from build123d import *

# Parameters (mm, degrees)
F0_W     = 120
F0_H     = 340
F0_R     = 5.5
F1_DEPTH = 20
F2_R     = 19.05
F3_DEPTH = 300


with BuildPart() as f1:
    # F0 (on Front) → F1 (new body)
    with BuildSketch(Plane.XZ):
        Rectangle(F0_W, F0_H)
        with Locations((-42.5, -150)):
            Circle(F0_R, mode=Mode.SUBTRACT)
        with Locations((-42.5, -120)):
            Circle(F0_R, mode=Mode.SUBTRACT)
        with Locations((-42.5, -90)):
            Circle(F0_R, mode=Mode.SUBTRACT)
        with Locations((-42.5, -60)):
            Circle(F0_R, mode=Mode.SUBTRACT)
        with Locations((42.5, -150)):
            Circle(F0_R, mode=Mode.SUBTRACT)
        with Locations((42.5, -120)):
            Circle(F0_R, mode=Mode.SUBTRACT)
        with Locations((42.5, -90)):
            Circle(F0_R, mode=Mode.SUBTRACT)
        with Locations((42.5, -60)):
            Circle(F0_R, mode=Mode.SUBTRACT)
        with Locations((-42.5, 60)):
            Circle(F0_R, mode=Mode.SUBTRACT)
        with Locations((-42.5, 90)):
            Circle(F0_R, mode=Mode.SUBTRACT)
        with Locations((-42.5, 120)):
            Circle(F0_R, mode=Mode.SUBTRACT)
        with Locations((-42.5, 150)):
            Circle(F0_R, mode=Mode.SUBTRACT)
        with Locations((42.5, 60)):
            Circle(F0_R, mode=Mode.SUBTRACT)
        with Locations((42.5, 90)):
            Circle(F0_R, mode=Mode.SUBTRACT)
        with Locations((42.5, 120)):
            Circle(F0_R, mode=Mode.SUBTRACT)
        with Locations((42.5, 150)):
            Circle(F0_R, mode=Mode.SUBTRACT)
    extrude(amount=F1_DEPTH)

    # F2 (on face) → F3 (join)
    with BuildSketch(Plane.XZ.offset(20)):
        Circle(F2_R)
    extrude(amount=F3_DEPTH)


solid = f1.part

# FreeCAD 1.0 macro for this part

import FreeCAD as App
import Part
import Sketcher
from FreeCAD import Vector

doc = App.newDocument("Part")
body = doc.addObject("PartDesign::Body", "Body")

sketch1 = body.newObject("Sketcher::SketchObject", "Sketch")
sketch1.AttachmentSupport = (doc.getObject("XZ_Plane"), [""])
sketch1.MapMode = "FlatFace"
sketch1.addGeometry(Part.LineSegment(Vector(-60, 170, 0), Vector(-60, -170, 0)), False)
sketch1.addGeometry(Part.LineSegment(Vector(-60, -170, 0), Vector(60, -170, 0)), False)
sketch1.addGeometry(Part.LineSegment(Vector(60, -170, 0), Vector(60, 170, 0)), False)
sketch1.addGeometry(Part.LineSegment(Vector(60, 170, 0), Vector(-60, 170, 0)), False)
sketch1.addGeometry(Part.Circle(Vector(-42, -150, 0), Vector(0, 0, 1), 6), False)
sketch1.addGeometry(Part.Circle(Vector(-42, -120, 0), Vector(0, 0, 1), 6), False)
sketch1.addGeometry(Part.Circle(Vector(-42, -90, 0), Vector(0, 0, 1), 6), False)
sketch1.addGeometry(Part.Circle(Vector(-42, -60, 0), Vector(0, 0, 1), 6), False)
sketch1.addGeometry(Part.Circle(Vector(42, -150, 0), Vector(0, 0, 1), 6), False)
sketch1.addGeometry(Part.Circle(Vector(42, -120, 0), Vector(0, 0, 1), 6), False)
sketch1.addGeometry(Part.Circle(Vector(42, -90, 0), Vector(0, 0, 1), 6), False)
sketch1.addGeometry(Part.Circle(Vector(42, -60, 0), Vector(0, 0, 1), 6), False)
sketch1.addGeometry(Part.Circle(Vector(-42, 60, 0), Vector(0, 0, 1), 6), False)
sketch1.addGeometry(Part.Circle(Vector(-42, 90, 0), Vector(0, 0, 1), 6), False)
sketch1.addGeometry(Part.Circle(Vector(-42, 120, 0), Vector(0, 0, 1), 6), False)
sketch1.addGeometry(Part.Circle(Vector(-42, 150, 0), Vector(0, 0, 1), 6), False)
sketch1.addGeometry(Part.Circle(Vector(42, 60, 0), Vector(0, 0, 1), 6), False)
sketch1.addGeometry(Part.Circle(Vector(42, 90, 0), Vector(0, 0, 1), 6), False)
sketch1.addGeometry(Part.Circle(Vector(42, 120, 0), Vector(0, 0, 1), 6), False)
sketch1.addGeometry(Part.Circle(Vector(42, 150, 0), Vector(0, 0, 1), 6), False)
sketch1.addConstraint(Sketcher.Constraint("Coincident", 0, 2, 1, 1))
sketch1.addConstraint(Sketcher.Constraint("Coincident", 1, 2, 2, 1))
sketch1.addConstraint(Sketcher.Constraint("Coincident", 2, 2, 3, 1))
sketch1.addConstraint(Sketcher.Constraint("Coincident", 3, 2, 0, 1))
sketch1.addConstraint(Sketcher.Constraint("Vertical", 0))
sketch1.addConstraint(Sketcher.Constraint("Horizontal", 1))
sketch1.addConstraint(Sketcher.Constraint("Vertical", 2))
sketch1.addConstraint(Sketcher.Constraint("Horizontal", 3))
sketch1.addConstraint(Sketcher.Constraint("Equal", 4, 5))
sketch1.addConstraint(Sketcher.Constraint("Equal", 5, 6))
sketch1.addConstraint(Sketcher.Constraint("Equal", 6, 7))
sketch1.addConstraint(Sketcher.Constraint("Equal", 7, 8))
sketch1.addConstraint(Sketcher.Constraint("Equal", 8, 9))
sketch1.addConstraint(Sketcher.Constraint("Equal", 9, 10))
sketch1.addConstraint(Sketcher.Constraint("Equal", 10, 11))
sketch1.addConstraint(Sketcher.Constraint("Equal", 11, 12))
sketch1.addConstraint(Sketcher.Constraint("Equal", 12, 13))
sketch1.addConstraint(Sketcher.Constraint("Equal", 13, 14))
sketch1.addConstraint(Sketcher.Constraint("Equal", 14, 15))
sketch1.addConstraint(Sketcher.Constraint("Equal", 15, 16))
sketch1.addConstraint(Sketcher.Constraint("Equal", 16, 17))
sketch1.addConstraint(Sketcher.Constraint("Equal", 17, 18))
sketch1.addConstraint(Sketcher.Constraint("Equal", 18, 19))
sketch1.addConstraint(Sketcher.Constraint("Symmetric", 11, 3, 12, 3, -1, 1))
sketch1.addConstraint(Sketcher.Constraint("Symmetric", 10, 3, 13, 3, -1, 1))
sketch1.addConstraint(Sketcher.Constraint("Symmetric", 9, 3, 14, 3, -1, 1))
sketch1.addConstraint(Sketcher.Constraint("Symmetric", 8, 3, 15, 3, -1, 1))
sketch1.addConstraint(Sketcher.Constraint("Symmetric", 7, 3, 16, 3, -1, 1))
sketch1.addConstraint(Sketcher.Constraint("Symmetric", 6, 3, 17, 3, -1, 1))
sketch1.addConstraint(Sketcher.Constraint("Symmetric", 5, 3, 18, 3, -1, 1))
sketch1.addConstraint(Sketcher.Constraint("Symmetric", 4, 3, 19, 3, -1, 1))
sketch1.addConstraint(Sketcher.Constraint("Symmetric", 0, 2, 2, 2, -1, 1))
sketch1.addConstraint(Sketcher.Constraint("Symmetric", 4, 3, 8, 3, -2))
sketch1.addConstraint(Sketcher.Constraint("Symmetric", 5, 3, 9, 3, -2))
sketch1.addConstraint(Sketcher.Constraint("Symmetric", 6, 3, 10, 3, -2))
sketch1.addConstraint(Sketcher.Constraint("Symmetric", 7, 3, 11, 3, -2))
sketch1.addConstraint(Sketcher.Constraint("Vertical", 4, 3, 5, 3))
sketch1.addConstraint(Sketcher.Constraint("Vertical", 5, 3, 6, 3))
sketch1.addConstraint(Sketcher.Constraint("Vertical", 6, 3, 7, 3))
sketch1.addConstraint(Sketcher.Constraint("Diameter", 4, 11.0))
sketch1.addConstraint(Sketcher.Constraint("DistanceX", 1, 1, 1, 2, 120.0))
sketch1.addConstraint(Sketcher.Constraint("DistanceY", 0, 2, 0, 1, 340.0))
sketch1.addConstraint(Sketcher.Constraint("DistanceY", 4, 3, -1, 1, 150.0))
sketch1.addConstraint(Sketcher.Constraint("DistanceY", 5, 3, -1, 1, 120.0))
sketch1.addConstraint(Sketcher.Constraint("DistanceY", 6, 3, -1, 1, 90.0))
sketch1.addConstraint(Sketcher.Constraint("DistanceY", 7, 3, -1, 1, 60.0))
sketch1.addConstraint(Sketcher.Constraint("DistanceX", 4, 3, 8, 3, 85.0))
pad1 = body.newObject("PartDesign::Pad", "Pad")
pad1.Profile = sketch1
pad1.Length = 20

sketch2 = body.newObject("Sketcher::SketchObject", "Sketch001")
sketch2.AttachmentSupport = (doc.getObject("XZ_Plane"), [""])
sketch2.MapMode = "FlatFace"
sketch2.AttachmentOffset = App.Placement(Vector(0, 0, 20), App.Rotation())
sketch2.addGeometry(Part.Circle(Vector(0, 0, 0), Vector(0, 0, 1), 19), False)
sketch2.addConstraint(Sketcher.Constraint("Coincident", 0, 3, -1, 1))
sketch2.addConstraint(Sketcher.Constraint("Diameter", 0, 38.1))
pad2 = body.newObject("PartDesign::Pad", "Pad001")
pad2.Profile = sketch2
pad2.Length = 300

doc.recompute()
